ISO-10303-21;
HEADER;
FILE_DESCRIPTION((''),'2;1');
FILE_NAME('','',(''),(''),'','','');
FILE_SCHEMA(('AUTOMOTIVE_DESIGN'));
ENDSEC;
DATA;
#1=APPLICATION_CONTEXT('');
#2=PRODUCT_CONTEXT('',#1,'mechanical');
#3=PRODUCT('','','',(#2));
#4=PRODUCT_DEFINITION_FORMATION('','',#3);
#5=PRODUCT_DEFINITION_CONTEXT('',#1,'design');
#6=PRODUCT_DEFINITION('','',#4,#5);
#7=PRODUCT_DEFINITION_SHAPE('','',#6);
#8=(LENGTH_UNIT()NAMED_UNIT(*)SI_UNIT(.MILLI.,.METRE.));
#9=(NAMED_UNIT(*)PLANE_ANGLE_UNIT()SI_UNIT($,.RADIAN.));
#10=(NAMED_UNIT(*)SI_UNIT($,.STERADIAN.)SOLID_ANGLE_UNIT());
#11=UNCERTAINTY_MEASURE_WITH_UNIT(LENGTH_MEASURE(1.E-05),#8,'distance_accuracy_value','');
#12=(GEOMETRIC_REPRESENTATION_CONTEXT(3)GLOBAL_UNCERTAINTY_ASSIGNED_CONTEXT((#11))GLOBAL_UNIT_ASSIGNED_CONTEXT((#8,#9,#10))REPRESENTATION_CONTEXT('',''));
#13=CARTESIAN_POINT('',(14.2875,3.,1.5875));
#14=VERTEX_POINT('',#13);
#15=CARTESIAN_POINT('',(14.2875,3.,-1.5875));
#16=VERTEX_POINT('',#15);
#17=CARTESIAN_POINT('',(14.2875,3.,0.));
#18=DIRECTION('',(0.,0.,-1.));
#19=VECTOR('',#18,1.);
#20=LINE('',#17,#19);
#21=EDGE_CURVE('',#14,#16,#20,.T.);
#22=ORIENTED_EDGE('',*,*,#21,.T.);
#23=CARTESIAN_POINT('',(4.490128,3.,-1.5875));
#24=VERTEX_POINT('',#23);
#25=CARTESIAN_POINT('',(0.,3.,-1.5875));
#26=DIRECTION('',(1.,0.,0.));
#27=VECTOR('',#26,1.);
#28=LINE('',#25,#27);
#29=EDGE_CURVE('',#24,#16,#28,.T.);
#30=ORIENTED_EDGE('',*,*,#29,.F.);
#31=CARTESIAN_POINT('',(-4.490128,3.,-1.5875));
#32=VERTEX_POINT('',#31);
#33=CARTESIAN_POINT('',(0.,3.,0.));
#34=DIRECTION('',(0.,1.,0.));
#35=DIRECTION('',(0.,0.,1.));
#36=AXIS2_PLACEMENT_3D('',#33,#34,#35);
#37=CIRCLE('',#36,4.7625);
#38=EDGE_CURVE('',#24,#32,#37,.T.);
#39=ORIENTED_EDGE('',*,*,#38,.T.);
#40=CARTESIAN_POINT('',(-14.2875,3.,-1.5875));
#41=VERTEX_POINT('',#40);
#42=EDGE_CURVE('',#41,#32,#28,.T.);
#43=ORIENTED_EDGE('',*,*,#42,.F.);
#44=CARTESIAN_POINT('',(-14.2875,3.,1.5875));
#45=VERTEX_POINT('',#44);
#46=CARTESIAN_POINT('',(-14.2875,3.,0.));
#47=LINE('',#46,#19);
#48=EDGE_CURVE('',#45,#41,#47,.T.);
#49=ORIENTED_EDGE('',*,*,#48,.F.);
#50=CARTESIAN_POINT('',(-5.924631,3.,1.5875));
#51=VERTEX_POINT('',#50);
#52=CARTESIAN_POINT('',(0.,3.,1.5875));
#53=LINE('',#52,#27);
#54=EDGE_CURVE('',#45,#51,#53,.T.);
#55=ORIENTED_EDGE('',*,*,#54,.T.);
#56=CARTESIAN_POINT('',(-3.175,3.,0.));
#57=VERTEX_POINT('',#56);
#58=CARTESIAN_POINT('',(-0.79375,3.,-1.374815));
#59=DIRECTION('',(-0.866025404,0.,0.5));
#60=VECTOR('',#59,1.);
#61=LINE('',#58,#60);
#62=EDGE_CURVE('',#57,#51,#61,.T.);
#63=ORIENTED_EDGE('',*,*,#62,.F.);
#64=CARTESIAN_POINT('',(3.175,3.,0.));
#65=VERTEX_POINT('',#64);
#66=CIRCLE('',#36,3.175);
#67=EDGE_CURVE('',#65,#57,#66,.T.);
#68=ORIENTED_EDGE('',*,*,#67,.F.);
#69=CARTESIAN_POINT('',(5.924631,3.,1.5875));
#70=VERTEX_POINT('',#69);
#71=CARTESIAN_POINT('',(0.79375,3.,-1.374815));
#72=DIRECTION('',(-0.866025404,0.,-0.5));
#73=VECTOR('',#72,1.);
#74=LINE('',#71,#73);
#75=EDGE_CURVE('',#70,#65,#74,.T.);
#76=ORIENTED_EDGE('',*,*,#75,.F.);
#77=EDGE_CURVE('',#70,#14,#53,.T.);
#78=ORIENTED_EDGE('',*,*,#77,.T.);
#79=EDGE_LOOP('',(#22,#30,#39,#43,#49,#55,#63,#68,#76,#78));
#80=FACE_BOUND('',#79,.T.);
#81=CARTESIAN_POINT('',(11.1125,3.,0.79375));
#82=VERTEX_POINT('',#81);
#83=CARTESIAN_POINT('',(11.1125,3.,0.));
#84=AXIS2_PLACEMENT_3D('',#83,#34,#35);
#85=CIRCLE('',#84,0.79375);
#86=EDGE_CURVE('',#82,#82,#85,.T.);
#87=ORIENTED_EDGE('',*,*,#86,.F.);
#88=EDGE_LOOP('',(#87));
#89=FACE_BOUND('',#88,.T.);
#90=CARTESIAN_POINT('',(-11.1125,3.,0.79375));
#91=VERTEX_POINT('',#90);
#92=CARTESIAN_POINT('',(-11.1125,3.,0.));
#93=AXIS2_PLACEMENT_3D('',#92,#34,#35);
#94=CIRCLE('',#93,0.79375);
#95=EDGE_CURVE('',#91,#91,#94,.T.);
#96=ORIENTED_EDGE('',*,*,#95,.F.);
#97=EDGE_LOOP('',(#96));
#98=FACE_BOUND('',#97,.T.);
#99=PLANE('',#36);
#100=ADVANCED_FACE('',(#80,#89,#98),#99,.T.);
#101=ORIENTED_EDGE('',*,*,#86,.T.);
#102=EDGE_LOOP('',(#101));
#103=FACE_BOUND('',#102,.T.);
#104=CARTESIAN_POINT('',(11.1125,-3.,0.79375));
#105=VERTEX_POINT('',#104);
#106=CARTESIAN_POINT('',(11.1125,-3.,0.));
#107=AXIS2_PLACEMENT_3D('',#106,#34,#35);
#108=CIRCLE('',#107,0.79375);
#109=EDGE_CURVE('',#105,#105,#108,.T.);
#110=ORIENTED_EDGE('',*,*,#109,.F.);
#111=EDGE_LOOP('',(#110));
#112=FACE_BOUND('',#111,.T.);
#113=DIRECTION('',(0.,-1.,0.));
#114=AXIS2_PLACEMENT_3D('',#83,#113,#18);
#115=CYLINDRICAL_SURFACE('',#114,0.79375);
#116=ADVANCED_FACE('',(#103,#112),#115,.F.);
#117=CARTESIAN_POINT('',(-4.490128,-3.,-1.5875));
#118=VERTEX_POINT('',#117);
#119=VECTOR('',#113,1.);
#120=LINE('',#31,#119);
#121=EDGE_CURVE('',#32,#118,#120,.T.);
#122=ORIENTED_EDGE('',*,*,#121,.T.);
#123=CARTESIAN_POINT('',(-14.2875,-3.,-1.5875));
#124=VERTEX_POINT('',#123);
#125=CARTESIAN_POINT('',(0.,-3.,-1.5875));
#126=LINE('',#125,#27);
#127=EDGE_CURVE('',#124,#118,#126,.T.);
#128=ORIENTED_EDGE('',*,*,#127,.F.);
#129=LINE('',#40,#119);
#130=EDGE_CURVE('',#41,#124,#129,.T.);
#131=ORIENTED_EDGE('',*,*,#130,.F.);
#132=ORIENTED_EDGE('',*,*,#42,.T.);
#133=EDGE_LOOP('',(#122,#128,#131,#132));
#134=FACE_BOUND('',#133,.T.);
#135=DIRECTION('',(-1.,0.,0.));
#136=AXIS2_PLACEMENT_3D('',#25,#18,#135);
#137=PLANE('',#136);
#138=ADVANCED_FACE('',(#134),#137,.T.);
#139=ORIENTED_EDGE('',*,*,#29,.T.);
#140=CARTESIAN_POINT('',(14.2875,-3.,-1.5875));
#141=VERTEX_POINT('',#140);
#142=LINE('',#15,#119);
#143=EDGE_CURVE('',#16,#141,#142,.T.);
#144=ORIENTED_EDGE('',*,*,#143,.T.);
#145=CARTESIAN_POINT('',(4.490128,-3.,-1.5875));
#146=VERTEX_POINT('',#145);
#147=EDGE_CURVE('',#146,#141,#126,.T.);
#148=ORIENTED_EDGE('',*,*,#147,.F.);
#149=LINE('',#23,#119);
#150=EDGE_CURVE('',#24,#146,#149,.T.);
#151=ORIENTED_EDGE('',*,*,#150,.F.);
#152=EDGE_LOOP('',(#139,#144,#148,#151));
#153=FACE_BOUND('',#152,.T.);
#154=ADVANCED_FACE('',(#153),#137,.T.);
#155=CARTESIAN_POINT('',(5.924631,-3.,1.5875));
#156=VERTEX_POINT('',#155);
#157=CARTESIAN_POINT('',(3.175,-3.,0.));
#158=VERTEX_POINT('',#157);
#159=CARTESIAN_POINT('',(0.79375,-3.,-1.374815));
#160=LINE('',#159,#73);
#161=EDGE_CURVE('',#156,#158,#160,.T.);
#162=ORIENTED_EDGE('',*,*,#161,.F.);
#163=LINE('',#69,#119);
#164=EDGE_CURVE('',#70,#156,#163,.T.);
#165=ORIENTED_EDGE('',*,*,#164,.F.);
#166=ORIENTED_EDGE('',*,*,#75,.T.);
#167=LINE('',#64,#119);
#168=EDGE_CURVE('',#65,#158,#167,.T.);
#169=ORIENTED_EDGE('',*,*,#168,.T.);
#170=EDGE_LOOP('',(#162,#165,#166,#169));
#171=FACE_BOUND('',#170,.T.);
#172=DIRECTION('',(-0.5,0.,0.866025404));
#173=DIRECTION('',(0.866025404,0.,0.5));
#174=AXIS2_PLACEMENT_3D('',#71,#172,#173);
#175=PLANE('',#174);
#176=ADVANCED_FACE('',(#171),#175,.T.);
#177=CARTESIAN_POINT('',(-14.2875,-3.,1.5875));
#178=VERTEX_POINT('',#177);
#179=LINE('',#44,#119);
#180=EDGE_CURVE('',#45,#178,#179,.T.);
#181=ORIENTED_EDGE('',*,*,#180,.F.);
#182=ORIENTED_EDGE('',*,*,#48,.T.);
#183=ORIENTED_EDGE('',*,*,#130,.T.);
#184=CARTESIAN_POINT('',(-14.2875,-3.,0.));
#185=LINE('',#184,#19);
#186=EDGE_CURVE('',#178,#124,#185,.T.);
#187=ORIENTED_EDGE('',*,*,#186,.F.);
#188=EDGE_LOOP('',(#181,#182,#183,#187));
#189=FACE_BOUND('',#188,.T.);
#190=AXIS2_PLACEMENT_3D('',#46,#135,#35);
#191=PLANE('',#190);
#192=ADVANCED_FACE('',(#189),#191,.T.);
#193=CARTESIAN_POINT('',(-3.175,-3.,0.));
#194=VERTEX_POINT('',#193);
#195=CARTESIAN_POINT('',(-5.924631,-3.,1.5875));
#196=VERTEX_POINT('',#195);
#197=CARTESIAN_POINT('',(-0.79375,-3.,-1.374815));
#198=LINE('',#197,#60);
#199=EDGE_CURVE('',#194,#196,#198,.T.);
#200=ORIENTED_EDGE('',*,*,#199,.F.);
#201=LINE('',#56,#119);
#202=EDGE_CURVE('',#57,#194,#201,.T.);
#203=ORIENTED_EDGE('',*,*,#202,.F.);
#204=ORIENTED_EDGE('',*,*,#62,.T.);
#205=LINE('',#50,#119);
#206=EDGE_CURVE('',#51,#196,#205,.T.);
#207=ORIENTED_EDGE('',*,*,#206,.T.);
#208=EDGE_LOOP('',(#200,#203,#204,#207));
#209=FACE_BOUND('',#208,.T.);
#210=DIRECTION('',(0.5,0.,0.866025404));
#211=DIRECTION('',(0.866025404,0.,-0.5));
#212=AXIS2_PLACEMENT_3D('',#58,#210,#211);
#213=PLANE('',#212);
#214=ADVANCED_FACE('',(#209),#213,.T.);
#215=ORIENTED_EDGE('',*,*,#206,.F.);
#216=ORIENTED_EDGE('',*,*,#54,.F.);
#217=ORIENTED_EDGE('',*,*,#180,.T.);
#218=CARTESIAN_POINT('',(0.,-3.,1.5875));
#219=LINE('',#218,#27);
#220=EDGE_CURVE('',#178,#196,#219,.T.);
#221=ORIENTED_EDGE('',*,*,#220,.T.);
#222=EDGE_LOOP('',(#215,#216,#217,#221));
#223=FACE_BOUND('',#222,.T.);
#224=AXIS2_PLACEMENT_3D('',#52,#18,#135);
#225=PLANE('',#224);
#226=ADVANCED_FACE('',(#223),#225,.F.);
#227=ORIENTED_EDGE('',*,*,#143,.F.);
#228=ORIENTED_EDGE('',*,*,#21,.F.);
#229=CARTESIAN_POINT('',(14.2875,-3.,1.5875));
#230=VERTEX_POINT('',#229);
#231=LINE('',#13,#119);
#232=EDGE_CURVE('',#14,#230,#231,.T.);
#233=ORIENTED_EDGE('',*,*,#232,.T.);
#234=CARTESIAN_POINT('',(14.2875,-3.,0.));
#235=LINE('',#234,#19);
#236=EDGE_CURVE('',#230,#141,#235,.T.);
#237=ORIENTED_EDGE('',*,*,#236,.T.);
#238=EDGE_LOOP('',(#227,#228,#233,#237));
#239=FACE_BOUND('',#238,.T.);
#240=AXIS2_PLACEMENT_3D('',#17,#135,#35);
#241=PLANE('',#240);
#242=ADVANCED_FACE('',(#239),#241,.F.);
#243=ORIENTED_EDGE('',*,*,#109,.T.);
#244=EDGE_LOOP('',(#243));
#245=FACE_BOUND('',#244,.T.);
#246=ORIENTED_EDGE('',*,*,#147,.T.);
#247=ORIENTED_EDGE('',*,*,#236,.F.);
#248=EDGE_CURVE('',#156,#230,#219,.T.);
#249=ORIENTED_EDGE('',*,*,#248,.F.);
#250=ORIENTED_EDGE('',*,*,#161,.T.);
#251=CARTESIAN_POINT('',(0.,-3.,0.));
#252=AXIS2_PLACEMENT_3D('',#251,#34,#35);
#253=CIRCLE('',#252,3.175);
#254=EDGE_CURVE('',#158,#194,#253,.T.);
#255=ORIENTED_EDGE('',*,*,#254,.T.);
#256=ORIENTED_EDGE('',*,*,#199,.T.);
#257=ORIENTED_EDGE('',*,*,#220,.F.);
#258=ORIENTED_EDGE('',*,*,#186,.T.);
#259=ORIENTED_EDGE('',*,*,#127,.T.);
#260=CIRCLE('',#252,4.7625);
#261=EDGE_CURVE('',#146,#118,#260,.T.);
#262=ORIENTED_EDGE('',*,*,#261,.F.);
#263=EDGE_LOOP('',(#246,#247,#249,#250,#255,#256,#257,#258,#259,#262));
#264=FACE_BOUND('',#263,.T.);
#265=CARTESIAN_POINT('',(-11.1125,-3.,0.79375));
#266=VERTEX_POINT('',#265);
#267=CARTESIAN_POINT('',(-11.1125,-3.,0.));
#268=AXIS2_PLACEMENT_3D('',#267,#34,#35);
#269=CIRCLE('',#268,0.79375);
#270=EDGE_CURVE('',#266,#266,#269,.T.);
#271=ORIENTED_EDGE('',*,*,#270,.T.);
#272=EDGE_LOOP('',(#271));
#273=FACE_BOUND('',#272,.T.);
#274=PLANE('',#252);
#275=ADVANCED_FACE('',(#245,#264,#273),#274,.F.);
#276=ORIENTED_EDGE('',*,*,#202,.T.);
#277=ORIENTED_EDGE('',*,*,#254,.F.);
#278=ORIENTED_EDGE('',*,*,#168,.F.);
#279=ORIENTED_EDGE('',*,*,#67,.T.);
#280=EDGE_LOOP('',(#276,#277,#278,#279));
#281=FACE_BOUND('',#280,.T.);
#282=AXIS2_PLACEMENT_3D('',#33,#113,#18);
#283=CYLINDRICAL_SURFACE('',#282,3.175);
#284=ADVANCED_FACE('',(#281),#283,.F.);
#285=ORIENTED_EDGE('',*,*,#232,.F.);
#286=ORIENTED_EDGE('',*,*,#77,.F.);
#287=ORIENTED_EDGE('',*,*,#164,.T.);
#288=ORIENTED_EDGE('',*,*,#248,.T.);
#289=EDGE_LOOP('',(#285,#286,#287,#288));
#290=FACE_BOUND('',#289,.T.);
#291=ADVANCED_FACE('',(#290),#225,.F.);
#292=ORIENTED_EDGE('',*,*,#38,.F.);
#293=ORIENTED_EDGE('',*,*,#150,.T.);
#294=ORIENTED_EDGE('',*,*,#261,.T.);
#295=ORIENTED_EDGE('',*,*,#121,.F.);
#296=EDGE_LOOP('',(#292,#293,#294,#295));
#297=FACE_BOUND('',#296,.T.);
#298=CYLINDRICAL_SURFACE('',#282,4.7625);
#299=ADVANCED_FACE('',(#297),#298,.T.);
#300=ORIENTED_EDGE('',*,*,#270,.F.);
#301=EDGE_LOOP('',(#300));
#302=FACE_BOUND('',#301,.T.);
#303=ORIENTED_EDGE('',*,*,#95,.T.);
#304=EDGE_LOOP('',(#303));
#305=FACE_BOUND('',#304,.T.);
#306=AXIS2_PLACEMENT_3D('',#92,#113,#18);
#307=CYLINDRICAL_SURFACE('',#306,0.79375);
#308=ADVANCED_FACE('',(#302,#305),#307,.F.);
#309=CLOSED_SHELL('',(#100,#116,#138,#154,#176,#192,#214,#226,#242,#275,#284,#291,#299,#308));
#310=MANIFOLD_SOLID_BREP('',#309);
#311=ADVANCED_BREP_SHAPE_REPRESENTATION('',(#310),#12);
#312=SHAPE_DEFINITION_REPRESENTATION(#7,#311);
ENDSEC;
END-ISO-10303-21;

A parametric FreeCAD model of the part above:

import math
import FreeCAD as App
import Part
import Sketcher
from FreeCAD import Vector
Q = App.Units.Quantity

doc = App.newDocument("Part")
params = doc.addObject("Spreadsheet::Sheet", "Params")
for row, (alias, value) in enumerate([
    ("sketch1_diameter", "0.0625 in"),
    ("sketch1_radius", "0.125 in"),
    ("sketch1_radius2", "0.1875 in"),
    ("sketch1_height", "0.125 in"),
    ("pad1_length", "6 mm"),
], start=1):
    params.set(f"A{row}", alias)
    params.set(f"B{row}", "=" + value)
    params.setAlias(f"B{row}", alias)

body = doc.addObject("PartDesign::Body", "Body")

sketch1 = doc.addObject("Sketcher::SketchObject", "Sketch")
body.addObject(sketch1)
sketch1.AttachmentSupport = (doc.XZ_Plane, [""])
sketch1.MapMode = "FlatFace"
sketch1.addGeometry([
    Part.LineSegment(Vector(-5.9, 1.6, 0), Vector(-4.7, 0.9, 0)),
    Part.LineSegment(Vector(-4.7, 0.9, 0), Vector(-3.2, 0, 0)),
    Part.ArcOfCircle(Part.Circle(Vector(0, 0, 0), Vector(0, 0, 1), 3.2), math.radians(-180), math.radians(-150)),
    Part.ArcOfCircle(Part.Circle(Vector(0, 0, 0), Vector(0, 0, 1), 3.2), math.radians(-150), math.radians(-30)),
    Part.ArcOfCircle(Part.Circle(Vector(0, 0, 0), Vector(0, 0, 1), 3.2), math.radians(-30), math.radians(0)),
    Part.LineSegment(Vector(3.2, 0, 0), Vector(4.7, 0.9, 0)),
    Part.LineSegment(Vector(4.7, 0.9, 0), Vector(5.9, 1.6, 0)),
    Part.LineSegment(Vector(5.9, 1.6, 0), Vector(14.3, 1.6, 0)),
    Part.LineSegment(Vector(14.3, 1.6, 0), Vector(14.3, -1.6, 0)),
    Part.LineSegment(Vector(14.3, -1.6, 0), Vector(4.5, -1.6, 0)),
    Part.ArcOfCircle(Part.Circle(Vector(0, 0, 0), Vector(0, 0, 1), 4.8), math.radians(-161), math.radians(-19)),
    Part.LineSegment(Vector(-4.5, -1.6, 0), Vector(-14.3, -1.6, 0)),
    Part.LineSegment(Vector(-14.3, -1.6, 0), Vector(-14.3, 1.6, 0)),
    Part.LineSegment(Vector(-14.3, 1.6, 0), Vector(-5.9, 1.6, 0)),
    Part.Circle(Vector(-11.1, 0, 0), Vector(0, 0, 1), 0.8),
    Part.Circle(Vector(11.1, 0, 0), Vector(0, 0, 1), 0.8),
], False)
sketch1.addConstraint([
    Sketcher.Constraint("Coincident", 0, 2, 1, 1),
    Sketcher.Constraint("Coincident", 1, 2, 2, 1),
    Sketcher.Constraint("Tangent", 2, 2, 3, 1),
    Sketcher.Constraint("Tangent", 3, 2, 4, 1),
    Sketcher.Constraint("Coincident", 4, 2, 5, 1),
    Sketcher.Constraint("Coincident", 5, 2, 6, 1),
    Sketcher.Constraint("Coincident", 6, 2, 7, 1),
    Sketcher.Constraint("Coincident", 7, 2, 8, 1),
    Sketcher.Constraint("Coincident", 8, 2, 9, 1),
    Sketcher.Constraint("Coincident", 9, 2, 10, 2),
    Sketcher.Constraint("Coincident", 10, 1, 11, 1),
    Sketcher.Constraint("Coincident", 11, 2, 12, 1),
    Sketcher.Constraint("Coincident", 12, 2, 13, 1),
    Sketcher.Constraint("Coincident", 13, 2, 0, 1),
    Sketcher.Constraint("Horizontal", 7),
    Sketcher.Constraint("Vertical", 8),
    Sketcher.Constraint("Horizontal", 9),
    Sketcher.Constraint("Horizontal", 11),
    Sketcher.Constraint("Vertical", 12),
    Sketcher.Constraint("Horizontal", 13),
    Sketcher.Constraint("Coincident", 2, 3, -1, 1),
    Sketcher.Constraint("Coincident", 4, 3, -1, 1),
    Sketcher.Constraint("Coincident", 10, 3, -1, 1),
    Sketcher.Constraint("Equal", 14, 15),
    Sketcher.Constraint("Symmetric", 14, 3, 15, 3, -1, 1),
    Sketcher.Constraint("Symmetric", 7, 2, 11, 2, -1, 1),
    Sketcher.Constraint("Symmetric", 0, 2, 5, 2, -2),
    Sketcher.Constraint("Symmetric", 6, 2, 13, 2, -2),
    Sketcher.Constraint("PointOnObject", 14, 3, -1),
    Sketcher.Constraint("PointOnObject", 1, 2, -1),
    Sketcher.Constraint("PointOnObject", 4, 2, -1),
    Sketcher.Constraint("Parallel", 0, 1),
    Sketcher.Constraint("Horizontal", 2, 2, 3, 2),
    Sketcher.Constraint("Horizontal", 3, 2, 8, 2),
    Sketcher.Constraint("Horizontal", 9, 2, 10, 1),
    Sketcher.Constraint("Diameter", 14, Q("0.0625 in")),
    Sketcher.Constraint("Angle", 0, Q("-30 deg")),
    Sketcher.Constraint("Radius", 2, Q("0.125 in")),
    Sketcher.Constraint("Radius", 10, Q("0.1875 in")),
    Sketcher.Constraint("DistanceY", 8, 2, 8, 1, Q("0.125 in")),
    Sketcher.Constraint("DistanceX", 14, 3, -1, 1, Q("0.4375 in")),
    Sketcher.Constraint("DistanceX", -1, 1, 7, 2, Q("0.5625 in")),
    Sketcher.Constraint("DistanceY", -1, 1, 0, 2, Q("0.870249 mm")),
])
sketch1.setExpression("Constraints[35]", "Params.sketch1_diameter")
sketch1.setExpression("Constraints[37]", "Params.sketch1_radius")
sketch1.setExpression("Constraints[38]", "Params.sketch1_radius2")
sketch1.setExpression("Constraints[39]", "Params.sketch1_height")
pad1 = doc.addObject("PartDesign::Pad", "Pad")
body.addObject(pad1)
pad1.Profile = sketch1
pad1.setExpression("Length", "Params.pad1_length")
pad1.Midplane = True

doc.recompute()
